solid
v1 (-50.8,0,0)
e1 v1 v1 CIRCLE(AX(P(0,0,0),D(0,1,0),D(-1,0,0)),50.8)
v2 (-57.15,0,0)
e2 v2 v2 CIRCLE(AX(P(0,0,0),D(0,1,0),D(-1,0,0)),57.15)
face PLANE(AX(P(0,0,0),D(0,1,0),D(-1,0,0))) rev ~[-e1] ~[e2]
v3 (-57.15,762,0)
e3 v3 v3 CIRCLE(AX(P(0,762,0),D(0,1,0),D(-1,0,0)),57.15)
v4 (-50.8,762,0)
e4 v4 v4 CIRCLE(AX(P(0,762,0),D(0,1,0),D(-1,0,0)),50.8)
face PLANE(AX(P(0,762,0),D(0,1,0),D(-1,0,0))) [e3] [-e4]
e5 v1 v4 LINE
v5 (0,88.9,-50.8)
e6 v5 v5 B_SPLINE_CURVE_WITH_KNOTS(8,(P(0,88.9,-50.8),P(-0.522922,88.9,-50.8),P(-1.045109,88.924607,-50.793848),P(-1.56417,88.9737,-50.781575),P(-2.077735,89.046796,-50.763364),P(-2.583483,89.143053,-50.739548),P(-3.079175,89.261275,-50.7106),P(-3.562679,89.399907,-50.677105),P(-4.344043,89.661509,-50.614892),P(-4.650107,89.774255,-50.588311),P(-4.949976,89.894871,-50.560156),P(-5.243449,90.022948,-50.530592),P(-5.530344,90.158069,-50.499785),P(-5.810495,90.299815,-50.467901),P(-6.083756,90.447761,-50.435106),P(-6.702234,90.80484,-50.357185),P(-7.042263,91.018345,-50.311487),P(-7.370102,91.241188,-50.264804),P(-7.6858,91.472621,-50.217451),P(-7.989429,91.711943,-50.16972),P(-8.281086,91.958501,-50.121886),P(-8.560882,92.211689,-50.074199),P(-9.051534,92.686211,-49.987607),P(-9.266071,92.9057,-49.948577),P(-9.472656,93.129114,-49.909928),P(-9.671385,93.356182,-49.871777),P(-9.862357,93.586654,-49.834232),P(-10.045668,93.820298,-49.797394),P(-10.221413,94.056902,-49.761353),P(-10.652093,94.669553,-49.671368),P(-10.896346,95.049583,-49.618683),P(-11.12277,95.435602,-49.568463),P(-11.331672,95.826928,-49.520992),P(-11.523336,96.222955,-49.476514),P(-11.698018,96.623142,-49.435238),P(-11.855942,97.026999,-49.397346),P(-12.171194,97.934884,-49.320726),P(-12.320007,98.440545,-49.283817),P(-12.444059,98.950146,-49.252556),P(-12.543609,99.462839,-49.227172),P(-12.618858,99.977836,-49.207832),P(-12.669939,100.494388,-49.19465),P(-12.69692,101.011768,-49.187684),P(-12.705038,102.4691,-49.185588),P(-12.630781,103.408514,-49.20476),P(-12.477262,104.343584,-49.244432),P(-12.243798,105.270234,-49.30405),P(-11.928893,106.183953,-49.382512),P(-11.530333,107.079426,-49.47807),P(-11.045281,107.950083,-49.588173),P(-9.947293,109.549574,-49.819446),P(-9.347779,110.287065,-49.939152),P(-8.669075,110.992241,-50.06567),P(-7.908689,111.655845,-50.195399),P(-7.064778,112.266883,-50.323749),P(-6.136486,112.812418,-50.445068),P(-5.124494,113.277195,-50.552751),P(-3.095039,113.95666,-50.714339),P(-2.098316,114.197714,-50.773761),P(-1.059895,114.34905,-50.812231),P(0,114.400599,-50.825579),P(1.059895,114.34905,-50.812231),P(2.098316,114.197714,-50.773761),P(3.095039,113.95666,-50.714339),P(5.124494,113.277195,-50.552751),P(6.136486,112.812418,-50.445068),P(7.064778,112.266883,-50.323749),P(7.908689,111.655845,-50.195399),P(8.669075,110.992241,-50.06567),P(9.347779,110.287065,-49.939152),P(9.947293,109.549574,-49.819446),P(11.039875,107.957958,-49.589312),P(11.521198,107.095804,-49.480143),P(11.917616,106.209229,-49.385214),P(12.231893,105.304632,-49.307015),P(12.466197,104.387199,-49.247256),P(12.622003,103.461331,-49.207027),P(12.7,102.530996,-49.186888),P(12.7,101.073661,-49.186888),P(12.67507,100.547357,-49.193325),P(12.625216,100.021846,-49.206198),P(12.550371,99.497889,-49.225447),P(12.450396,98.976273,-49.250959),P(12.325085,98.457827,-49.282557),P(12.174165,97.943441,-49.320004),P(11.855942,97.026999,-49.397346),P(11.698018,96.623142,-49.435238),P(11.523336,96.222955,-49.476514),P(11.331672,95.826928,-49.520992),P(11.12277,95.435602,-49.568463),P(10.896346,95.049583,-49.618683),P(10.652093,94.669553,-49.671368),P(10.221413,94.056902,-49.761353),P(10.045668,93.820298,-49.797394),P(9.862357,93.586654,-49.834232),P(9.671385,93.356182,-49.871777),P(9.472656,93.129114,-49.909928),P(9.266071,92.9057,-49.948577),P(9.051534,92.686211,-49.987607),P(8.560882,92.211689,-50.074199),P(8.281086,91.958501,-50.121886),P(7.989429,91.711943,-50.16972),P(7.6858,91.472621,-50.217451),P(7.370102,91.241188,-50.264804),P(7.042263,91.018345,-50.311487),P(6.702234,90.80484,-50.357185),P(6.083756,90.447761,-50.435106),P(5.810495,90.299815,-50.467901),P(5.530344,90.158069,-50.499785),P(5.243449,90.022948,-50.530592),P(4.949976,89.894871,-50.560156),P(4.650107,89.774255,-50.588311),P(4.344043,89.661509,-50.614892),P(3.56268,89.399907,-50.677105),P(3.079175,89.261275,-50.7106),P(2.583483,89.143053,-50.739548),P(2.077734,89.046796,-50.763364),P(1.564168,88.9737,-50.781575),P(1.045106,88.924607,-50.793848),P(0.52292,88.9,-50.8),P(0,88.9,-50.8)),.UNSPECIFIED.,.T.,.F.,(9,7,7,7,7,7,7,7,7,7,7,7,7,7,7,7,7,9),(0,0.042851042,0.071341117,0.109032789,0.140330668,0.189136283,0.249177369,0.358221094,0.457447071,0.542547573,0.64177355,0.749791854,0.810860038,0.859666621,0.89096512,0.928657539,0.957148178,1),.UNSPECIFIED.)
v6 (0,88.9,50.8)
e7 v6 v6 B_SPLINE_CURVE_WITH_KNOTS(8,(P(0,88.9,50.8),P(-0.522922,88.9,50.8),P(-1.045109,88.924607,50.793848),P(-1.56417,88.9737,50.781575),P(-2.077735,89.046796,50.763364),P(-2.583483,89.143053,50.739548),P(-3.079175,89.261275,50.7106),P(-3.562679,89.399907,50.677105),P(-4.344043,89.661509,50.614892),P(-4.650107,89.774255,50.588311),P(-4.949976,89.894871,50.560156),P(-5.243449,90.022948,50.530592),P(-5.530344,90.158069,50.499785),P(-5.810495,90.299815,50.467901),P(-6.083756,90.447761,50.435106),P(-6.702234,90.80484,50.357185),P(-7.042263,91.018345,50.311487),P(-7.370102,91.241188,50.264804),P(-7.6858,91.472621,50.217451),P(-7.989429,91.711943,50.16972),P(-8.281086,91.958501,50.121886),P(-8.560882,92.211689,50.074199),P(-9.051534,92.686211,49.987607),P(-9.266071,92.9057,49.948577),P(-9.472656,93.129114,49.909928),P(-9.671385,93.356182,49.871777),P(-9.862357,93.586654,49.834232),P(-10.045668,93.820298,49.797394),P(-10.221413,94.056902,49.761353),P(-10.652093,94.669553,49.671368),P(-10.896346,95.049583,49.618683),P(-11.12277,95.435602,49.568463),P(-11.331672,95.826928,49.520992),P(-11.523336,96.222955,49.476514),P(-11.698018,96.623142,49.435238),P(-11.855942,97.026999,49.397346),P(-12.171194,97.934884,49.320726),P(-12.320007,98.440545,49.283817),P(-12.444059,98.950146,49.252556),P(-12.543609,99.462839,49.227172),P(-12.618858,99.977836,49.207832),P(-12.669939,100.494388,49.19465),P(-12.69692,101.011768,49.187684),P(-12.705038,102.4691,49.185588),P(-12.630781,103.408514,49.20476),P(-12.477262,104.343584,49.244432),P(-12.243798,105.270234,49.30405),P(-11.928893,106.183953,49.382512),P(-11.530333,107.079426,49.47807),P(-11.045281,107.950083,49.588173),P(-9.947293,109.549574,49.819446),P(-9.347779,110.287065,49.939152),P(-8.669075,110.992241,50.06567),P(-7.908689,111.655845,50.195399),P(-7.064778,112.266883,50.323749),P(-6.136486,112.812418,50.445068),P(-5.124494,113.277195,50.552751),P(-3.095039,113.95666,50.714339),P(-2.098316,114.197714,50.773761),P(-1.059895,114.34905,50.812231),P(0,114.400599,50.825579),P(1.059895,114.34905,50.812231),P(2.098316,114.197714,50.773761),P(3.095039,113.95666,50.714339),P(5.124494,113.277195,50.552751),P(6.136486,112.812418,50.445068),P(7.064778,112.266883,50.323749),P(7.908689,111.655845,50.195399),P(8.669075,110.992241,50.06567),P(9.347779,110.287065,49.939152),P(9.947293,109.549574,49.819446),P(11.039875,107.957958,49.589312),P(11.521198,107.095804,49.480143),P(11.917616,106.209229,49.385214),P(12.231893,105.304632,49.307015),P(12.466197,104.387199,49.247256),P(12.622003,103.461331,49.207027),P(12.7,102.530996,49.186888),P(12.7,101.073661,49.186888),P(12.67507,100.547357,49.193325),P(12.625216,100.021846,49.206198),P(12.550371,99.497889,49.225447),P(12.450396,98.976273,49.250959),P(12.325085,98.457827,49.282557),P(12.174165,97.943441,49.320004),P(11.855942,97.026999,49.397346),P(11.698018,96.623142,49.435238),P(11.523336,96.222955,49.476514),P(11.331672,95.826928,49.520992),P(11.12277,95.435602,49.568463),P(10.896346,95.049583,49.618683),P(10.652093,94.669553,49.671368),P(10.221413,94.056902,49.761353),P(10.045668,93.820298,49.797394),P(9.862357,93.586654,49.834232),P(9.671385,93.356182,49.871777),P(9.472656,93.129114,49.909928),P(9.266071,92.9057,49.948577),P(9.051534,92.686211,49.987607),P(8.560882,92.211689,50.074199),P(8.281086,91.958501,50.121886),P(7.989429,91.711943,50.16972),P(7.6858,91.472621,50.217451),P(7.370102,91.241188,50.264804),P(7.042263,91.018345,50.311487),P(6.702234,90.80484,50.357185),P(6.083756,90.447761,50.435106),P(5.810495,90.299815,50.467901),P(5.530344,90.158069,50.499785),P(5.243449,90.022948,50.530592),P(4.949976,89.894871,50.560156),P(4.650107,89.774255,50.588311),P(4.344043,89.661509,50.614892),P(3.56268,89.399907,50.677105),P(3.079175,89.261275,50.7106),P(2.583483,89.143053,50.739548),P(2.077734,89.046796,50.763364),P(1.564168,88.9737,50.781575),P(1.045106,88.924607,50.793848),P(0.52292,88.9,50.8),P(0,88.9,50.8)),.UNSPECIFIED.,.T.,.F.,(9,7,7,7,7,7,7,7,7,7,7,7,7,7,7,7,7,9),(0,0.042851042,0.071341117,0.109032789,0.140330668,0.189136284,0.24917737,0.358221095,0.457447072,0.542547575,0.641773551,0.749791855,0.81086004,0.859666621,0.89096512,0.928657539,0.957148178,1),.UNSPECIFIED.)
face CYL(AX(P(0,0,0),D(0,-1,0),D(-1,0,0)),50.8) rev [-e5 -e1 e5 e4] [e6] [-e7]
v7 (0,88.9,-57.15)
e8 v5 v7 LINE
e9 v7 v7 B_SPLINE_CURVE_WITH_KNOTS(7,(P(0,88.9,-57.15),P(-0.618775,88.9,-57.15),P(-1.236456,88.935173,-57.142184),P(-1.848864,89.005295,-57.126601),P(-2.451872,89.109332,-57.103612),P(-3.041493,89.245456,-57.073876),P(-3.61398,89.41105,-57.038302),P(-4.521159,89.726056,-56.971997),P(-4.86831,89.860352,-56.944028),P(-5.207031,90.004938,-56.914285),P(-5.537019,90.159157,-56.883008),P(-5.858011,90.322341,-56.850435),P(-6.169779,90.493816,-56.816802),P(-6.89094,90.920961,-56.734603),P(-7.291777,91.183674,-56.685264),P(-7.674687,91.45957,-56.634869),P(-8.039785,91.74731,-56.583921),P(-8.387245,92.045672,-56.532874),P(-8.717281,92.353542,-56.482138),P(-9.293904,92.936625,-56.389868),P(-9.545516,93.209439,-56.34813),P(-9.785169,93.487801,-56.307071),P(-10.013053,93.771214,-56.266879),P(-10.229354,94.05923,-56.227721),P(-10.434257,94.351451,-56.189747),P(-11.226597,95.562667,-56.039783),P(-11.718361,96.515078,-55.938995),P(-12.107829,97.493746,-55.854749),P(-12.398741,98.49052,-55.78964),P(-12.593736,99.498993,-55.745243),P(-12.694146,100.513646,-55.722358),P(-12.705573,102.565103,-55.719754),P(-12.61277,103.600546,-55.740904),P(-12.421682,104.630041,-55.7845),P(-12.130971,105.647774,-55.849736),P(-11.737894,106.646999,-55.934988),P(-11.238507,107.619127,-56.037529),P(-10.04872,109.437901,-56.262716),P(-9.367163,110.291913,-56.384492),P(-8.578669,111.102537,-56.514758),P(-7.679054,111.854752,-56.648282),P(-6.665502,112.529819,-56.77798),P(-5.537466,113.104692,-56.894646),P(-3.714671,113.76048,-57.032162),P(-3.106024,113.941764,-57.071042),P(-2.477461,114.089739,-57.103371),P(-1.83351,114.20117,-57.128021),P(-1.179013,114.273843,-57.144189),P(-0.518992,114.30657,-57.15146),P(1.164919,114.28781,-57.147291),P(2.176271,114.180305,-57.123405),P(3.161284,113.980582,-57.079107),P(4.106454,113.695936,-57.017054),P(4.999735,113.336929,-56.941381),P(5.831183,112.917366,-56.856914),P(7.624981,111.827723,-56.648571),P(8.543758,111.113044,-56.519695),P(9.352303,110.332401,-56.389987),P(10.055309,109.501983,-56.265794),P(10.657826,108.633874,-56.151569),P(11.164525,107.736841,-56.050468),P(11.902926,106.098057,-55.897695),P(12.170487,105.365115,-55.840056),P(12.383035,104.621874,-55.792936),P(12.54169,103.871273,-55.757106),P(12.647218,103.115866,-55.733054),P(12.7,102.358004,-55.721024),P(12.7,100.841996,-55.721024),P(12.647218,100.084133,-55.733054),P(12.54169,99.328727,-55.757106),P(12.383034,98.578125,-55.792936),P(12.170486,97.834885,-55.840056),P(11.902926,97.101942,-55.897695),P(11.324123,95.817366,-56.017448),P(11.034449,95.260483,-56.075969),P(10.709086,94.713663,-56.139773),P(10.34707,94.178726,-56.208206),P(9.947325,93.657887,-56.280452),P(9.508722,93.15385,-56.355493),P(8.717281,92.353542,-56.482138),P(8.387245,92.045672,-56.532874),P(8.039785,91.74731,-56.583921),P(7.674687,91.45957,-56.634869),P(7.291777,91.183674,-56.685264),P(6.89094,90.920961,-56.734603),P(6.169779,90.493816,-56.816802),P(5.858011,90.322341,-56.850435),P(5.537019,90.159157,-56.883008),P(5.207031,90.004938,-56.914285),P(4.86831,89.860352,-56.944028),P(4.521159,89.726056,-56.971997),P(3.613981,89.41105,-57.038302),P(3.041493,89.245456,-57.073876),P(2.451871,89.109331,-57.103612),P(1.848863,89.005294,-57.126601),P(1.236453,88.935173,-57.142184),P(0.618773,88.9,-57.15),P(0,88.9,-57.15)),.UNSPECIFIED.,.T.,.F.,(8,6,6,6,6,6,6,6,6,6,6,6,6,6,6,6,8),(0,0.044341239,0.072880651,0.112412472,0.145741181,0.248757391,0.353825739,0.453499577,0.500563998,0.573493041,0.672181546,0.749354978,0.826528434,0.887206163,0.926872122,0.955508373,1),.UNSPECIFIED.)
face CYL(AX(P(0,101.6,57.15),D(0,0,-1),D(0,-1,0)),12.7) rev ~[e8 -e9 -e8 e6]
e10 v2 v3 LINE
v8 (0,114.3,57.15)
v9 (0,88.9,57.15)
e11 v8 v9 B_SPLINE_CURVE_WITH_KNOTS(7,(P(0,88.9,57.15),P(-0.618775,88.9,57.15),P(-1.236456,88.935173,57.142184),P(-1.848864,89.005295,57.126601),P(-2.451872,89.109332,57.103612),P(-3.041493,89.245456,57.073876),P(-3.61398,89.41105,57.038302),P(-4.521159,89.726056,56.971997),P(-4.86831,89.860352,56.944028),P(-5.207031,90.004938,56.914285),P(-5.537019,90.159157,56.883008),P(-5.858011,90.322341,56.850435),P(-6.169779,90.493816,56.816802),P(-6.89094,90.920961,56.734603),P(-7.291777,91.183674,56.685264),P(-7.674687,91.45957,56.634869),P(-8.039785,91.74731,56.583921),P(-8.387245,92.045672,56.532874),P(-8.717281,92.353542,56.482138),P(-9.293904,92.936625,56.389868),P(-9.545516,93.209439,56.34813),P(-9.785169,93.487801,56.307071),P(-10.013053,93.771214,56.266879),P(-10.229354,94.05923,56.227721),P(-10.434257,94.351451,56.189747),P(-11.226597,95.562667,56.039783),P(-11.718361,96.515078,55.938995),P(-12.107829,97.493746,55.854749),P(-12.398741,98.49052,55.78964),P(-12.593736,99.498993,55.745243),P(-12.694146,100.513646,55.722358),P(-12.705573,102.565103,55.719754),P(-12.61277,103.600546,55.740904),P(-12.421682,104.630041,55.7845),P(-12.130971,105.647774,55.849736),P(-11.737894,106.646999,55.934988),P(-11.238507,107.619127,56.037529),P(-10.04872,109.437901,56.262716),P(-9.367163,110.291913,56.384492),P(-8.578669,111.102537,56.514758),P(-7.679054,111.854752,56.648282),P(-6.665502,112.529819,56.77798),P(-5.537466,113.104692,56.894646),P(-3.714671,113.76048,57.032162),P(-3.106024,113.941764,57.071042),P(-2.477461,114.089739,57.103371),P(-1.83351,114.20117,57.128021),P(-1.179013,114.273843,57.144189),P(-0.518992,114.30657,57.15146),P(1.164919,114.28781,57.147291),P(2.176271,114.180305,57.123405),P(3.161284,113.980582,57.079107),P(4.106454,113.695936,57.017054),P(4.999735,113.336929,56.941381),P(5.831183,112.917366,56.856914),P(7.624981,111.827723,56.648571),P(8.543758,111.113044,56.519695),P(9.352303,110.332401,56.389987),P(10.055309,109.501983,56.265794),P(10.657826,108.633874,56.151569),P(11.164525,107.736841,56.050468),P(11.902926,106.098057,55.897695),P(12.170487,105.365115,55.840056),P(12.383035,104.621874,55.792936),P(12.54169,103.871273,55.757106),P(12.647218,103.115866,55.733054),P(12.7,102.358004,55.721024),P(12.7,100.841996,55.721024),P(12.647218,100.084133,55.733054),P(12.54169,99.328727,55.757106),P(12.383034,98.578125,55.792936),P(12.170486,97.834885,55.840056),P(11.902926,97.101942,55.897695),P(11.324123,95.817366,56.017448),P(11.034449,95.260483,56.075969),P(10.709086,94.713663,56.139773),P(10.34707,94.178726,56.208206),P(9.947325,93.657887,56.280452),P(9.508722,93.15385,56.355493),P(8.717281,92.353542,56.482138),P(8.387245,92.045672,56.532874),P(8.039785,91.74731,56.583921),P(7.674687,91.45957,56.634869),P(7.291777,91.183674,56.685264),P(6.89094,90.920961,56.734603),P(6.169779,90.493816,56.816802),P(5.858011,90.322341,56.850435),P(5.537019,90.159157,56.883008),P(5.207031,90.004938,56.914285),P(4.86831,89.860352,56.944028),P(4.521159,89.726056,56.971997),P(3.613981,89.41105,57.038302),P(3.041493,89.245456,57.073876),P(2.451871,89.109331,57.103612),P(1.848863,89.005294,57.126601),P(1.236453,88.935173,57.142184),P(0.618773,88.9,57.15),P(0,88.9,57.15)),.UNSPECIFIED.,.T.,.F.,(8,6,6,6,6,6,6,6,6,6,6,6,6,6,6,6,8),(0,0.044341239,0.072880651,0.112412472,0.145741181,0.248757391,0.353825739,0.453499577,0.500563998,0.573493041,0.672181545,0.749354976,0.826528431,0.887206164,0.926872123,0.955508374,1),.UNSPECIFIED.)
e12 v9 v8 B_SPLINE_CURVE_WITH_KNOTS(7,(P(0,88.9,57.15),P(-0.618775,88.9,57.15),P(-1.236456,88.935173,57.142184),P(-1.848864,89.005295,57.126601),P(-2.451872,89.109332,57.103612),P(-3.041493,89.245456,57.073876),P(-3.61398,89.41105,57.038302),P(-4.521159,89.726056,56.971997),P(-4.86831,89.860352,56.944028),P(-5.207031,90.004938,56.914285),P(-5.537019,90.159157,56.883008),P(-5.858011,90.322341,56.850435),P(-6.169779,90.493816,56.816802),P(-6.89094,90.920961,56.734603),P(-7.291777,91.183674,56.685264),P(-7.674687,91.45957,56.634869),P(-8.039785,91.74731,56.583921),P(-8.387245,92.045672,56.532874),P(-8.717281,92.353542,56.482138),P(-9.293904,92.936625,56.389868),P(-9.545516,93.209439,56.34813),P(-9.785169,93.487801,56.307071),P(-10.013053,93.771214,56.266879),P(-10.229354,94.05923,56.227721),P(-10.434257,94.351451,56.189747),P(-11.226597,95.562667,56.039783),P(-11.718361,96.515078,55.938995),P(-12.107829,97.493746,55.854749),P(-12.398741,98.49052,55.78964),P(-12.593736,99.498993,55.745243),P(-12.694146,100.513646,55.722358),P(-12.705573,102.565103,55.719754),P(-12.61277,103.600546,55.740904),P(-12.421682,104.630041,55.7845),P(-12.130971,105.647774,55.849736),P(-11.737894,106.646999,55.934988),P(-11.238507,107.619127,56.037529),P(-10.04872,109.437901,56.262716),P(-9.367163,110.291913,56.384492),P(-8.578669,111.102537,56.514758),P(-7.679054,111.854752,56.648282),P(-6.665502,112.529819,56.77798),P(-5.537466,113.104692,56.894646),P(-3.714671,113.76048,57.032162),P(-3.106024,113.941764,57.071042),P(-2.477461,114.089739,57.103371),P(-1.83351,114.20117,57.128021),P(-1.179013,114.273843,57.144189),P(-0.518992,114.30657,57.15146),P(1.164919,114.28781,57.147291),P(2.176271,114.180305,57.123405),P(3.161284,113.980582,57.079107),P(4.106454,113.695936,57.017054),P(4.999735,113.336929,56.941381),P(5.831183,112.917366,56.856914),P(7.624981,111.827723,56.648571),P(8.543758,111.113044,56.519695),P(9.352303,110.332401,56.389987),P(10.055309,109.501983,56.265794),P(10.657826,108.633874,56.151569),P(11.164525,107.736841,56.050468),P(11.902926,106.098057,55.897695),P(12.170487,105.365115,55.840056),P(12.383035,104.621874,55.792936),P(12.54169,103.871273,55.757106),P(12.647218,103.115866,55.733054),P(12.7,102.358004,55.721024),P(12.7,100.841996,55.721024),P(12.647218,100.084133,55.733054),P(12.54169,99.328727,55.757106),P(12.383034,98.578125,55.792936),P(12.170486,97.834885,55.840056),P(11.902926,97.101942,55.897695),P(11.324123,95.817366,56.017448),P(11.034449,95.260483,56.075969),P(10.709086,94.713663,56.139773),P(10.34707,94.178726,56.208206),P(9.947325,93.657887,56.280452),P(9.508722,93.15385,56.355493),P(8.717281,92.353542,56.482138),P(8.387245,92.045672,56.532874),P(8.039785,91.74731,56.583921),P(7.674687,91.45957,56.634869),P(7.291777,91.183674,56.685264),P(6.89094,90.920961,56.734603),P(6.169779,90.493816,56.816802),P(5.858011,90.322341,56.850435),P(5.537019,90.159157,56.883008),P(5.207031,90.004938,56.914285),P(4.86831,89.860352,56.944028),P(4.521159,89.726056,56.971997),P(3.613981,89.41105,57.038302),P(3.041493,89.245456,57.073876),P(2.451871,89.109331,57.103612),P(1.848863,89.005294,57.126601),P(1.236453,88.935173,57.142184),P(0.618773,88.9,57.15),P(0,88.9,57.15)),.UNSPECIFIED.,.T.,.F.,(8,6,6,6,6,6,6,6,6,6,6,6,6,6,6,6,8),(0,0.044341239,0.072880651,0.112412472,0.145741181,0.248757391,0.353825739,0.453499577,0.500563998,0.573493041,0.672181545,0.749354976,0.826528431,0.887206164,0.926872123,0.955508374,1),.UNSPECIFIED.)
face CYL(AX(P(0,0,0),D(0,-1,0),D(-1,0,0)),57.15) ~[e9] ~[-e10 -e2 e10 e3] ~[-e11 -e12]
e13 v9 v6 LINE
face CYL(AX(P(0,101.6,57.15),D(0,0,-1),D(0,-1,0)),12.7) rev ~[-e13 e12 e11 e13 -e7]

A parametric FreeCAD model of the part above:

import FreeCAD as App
import Part
import Sketcher
from FreeCAD import Vector
Q = App.Units.Quantity

doc = App.newDocument("Part")
body = doc.addObject("PartDesign::Body", "Body")

sketch1 = doc.addObject("Sketcher::SketchObject", "Sketch")
body.addObject(sketch1)
sketch1.AttachmentSupport = (doc.XZ_Plane, [""])
sketch1.MapMode = "FlatFace"
sketch1.addGeometry([
    Part.Circle(Vector(0, 0, 0), Vector(0, 0, 1), 57),
    Part.Circle(Vector(0, 0, 0), Vector(0, 0, 1), 51),
], False)
sketch1.addConstraint([
    Sketcher.Constraint("Coincident", 0, 3, -1, 1),
    Sketcher.Constraint("Coincident", 1, 3, -1, 1),
    Sketcher.Constraint("Diameter", 1, Q("4 in")),
    Sketcher.Constraint("Diameter", 0, Q("4.5 in")),
])
pad1 = doc.addObject("PartDesign::Pad", "Pad")
body.addObject(pad1)
pad1.Profile = sketch1
pad1.Length = Q("30 in")
pad1.Reversed = True

sketch2 = doc.addObject("Sketcher::SketchObject", "Sketch001")
body.addObject(sketch2)
sketch2.AttachmentSupport = (doc.XY_Plane, [""])
sketch2.MapMode = "FlatFace"
sketch2.AttachmentOffset = App.Placement(Vector(0, 0, 2.25 * 25.4), App.Rotation())
sketch2.addGeometry(Part.Circle(Vector(0, 102, 0), Vector(0, 0, 1), 13), False)
sketch2.addConstraint([
    Sketcher.Constraint("PointOnObject", 0, 3, -2),
    Sketcher.Constraint("Diameter", 0, Q("1 in")),
    Sketcher.Constraint("DistanceY", -1, 1, 0, 3, Q("4 in")),
])
doc.recompute()
hole = doc.addObject("PartDesign::Hole", "Hole")
body.addObject(hole)
hole.Profile = sketch2
hole.ThreadType = "None"
hole.Diameter = Q("1 in")
hole.DepthType = "ThroughAll"

doc.recompute()
